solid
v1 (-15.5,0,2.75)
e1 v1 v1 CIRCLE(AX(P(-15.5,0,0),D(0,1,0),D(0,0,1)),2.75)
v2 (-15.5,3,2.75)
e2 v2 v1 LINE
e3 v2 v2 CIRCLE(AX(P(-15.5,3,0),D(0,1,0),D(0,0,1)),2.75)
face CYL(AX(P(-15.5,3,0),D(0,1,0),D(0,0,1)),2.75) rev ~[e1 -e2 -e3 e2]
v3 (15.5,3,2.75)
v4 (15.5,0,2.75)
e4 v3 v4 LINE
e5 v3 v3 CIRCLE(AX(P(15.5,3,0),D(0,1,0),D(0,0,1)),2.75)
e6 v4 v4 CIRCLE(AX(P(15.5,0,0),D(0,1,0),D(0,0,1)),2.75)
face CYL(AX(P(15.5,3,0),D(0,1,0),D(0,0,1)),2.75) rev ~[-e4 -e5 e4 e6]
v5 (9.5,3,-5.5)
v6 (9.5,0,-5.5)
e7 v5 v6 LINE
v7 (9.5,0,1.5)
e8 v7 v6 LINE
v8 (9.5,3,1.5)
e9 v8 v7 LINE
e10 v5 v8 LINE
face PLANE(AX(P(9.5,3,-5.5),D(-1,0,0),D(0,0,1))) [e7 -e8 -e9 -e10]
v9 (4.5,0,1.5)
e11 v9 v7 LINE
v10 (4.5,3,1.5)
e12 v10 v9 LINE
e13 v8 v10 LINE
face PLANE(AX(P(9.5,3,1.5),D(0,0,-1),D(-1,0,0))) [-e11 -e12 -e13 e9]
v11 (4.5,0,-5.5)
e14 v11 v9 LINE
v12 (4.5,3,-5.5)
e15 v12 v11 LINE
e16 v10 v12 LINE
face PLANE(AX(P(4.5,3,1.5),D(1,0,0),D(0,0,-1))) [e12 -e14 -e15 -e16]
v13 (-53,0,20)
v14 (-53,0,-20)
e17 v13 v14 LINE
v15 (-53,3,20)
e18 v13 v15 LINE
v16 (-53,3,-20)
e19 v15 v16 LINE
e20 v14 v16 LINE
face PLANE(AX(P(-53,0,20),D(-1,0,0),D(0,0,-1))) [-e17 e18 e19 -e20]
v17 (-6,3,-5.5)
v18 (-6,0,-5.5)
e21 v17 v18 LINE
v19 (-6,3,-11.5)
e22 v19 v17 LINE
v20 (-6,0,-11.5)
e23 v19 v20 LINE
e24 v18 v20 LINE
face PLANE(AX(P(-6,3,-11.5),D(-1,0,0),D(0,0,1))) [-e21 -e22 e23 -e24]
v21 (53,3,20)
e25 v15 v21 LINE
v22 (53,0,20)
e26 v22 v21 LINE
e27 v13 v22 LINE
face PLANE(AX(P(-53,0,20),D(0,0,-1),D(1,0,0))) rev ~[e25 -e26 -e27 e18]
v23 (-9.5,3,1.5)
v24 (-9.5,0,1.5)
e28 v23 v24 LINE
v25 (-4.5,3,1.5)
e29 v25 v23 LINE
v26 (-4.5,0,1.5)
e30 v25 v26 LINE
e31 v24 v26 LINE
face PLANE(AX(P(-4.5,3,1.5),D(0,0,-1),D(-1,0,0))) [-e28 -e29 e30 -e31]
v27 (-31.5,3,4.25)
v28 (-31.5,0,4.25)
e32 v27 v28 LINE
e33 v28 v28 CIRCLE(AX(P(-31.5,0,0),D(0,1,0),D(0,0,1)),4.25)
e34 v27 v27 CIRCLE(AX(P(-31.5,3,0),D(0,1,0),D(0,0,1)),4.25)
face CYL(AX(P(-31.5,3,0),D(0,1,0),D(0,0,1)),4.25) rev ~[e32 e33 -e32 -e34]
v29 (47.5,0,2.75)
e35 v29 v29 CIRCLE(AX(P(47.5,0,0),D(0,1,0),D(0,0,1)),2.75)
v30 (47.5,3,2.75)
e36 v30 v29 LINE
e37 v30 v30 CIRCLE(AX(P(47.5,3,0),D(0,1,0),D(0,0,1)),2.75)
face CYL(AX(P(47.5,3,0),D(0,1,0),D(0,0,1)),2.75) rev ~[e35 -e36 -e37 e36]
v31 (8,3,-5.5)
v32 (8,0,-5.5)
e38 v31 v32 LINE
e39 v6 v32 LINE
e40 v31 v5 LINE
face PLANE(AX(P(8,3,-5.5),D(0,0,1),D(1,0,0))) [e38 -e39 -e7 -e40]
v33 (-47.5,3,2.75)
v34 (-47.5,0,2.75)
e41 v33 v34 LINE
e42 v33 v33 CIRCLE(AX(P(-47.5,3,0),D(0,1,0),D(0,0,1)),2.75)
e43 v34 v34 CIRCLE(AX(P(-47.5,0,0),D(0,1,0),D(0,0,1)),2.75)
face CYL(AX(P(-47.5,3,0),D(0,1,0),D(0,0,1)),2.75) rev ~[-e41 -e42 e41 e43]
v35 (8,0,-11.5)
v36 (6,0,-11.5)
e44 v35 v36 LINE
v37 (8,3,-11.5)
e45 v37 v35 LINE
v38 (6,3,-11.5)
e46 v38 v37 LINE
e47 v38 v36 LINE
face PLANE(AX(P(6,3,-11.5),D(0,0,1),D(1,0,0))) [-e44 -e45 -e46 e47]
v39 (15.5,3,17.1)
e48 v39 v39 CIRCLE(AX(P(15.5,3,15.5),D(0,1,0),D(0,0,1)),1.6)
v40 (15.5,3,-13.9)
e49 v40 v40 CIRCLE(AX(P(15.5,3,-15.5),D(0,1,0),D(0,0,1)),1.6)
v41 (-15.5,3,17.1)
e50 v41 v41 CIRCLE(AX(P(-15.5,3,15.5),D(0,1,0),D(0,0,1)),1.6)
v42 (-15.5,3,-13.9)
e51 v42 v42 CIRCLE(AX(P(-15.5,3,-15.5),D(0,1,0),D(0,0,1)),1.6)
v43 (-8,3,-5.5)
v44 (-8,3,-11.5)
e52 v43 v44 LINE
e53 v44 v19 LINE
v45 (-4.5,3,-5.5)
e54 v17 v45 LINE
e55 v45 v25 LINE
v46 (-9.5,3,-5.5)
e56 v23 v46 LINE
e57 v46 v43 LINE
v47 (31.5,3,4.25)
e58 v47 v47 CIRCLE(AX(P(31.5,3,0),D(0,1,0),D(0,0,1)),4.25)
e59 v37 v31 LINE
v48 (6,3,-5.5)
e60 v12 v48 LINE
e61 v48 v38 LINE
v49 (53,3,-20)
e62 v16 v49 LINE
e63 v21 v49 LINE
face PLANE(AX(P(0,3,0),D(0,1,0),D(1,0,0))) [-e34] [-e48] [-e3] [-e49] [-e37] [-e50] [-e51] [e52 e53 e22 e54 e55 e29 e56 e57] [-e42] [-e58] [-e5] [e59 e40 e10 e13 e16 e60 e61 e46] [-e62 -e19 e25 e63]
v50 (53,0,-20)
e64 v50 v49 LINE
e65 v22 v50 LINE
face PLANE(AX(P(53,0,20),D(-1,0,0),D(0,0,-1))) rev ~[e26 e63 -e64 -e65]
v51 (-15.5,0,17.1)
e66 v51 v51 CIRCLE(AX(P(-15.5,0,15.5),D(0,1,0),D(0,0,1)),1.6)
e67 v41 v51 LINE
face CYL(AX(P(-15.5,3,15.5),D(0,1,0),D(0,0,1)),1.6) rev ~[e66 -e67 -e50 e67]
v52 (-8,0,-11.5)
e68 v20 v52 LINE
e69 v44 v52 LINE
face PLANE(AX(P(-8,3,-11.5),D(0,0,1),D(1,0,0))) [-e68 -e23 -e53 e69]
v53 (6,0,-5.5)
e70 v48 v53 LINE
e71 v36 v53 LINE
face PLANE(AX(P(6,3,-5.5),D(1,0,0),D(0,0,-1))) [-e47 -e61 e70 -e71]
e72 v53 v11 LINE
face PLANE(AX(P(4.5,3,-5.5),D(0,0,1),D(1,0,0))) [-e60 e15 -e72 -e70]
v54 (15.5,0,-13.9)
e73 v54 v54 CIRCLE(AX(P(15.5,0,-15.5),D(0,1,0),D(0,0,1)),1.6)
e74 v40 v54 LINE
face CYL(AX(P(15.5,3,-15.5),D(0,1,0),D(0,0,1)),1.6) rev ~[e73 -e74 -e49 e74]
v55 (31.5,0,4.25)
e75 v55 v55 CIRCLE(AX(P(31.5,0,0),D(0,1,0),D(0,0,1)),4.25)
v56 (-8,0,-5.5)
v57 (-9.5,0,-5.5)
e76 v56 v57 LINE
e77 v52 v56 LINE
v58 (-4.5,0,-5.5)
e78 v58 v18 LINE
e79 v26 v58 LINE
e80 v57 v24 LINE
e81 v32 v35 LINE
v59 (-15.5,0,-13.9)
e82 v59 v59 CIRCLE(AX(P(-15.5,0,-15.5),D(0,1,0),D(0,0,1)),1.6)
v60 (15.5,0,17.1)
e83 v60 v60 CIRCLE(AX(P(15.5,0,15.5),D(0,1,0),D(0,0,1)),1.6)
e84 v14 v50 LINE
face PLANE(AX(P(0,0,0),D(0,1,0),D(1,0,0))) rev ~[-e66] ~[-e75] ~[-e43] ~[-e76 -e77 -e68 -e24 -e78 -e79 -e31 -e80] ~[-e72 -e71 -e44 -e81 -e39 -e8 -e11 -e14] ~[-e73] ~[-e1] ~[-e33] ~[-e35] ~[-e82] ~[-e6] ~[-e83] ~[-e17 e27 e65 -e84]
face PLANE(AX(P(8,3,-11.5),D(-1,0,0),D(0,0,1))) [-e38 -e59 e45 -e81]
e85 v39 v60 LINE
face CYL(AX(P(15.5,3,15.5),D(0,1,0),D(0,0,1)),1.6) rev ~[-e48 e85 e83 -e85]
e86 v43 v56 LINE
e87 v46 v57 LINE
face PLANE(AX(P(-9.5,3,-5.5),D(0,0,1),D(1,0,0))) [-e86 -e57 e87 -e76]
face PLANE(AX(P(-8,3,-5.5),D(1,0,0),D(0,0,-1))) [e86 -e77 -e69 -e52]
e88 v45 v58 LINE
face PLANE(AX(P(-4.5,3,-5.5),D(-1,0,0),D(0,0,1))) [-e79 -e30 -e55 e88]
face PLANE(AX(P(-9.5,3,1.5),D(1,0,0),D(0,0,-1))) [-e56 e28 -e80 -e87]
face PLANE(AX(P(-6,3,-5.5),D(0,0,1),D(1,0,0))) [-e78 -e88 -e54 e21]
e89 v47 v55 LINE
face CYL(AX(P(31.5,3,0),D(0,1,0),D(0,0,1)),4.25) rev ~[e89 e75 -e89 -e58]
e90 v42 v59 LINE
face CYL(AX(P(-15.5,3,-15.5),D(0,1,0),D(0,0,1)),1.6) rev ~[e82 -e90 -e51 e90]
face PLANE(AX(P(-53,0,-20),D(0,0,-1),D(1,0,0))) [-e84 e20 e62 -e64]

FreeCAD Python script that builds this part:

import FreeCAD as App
import Part
import Sketcher

V = App.Vector


def add_polygon(sketch, points):
    """Adds a closed chain of lines whose ends are joined by coincident constraints."""
    first, n = sketch.GeometryCount, len(points)
    for a, b in zip(points, points[1:] + points[:1]):
        sketch.addGeometry(Part.LineSegment(App.Vector(*a, 0), App.Vector(*b, 0)), False)
    for i in range(n):
        sketch.addConstraint(Sketcher.Constraint("Coincident", first + i, 2, first + (i + 1) % n, 1))

doc = App.newDocument("Part")
params = doc.addObject("Spreadsheet::Sheet", "Params")
for row, (alias, value) in enumerate([
    ("sketch1_width", "106 mm"),
    ("sketch1_height", "40 mm"),
    ("pad1_length", "3 mm"),
    ("sketch2_diameter", "8.5 mm"),
    ("sketch3_diameter", "8.5 mm"),
    ("sketch4_diameter", "5.5 mm"),
    ("sketch5_diameter", "5.5 mm"),
    ("sketch6_diameter", "5.5 mm"),
    ("sketch7_diameter", "5.5 mm"),
    ("sketch8_diameter", "3.2 mm"),
    ("sketch9_diameter", "3.2 mm"),
    ("sketch10_diameter", "3.2 mm"),
    ("sketch11_diameter", "3.2 mm"),
    ("sketch12_width", "2 mm"),
    ("sketch12_width2", "5 mm"),
    ("sketch12_height", "6 mm"),
    ("sketch12_height2", "7 mm"),
    ("sketch13_width", "2 mm"),
    ("sketch13_width2", "5 mm"),
    ("sketch13_height", "6 mm"),
    ("sketch13_height2", "7 mm"),
], start=1):
    params.set(f"A{row}", alias)
    params.set(f"B{row}", "=" + value)
    params.setAlias(f"B{row}", alias)

body = doc.addObject("PartDesign::Body", "Body")

# Sketch on XZ plane
sketch1 = body.newObject("Sketcher::SketchObject", "Sketch")
sketch1.AttachmentSupport = (doc.getObject("XZ_Plane"), [""])
sketch1.MapMode = "FlatFace"
add_polygon(sketch1, [(-53, -20), (-53, 20), (53, 20), (53, -20)])  # lines 0-3
sketch1.addConstraint([
    Sketcher.Constraint("Vertical", 0),
    Sketcher.Constraint("Horizontal", 1),
    Sketcher.Constraint("Vertical", 2),
    Sketcher.Constraint("Horizontal", 3),
    Sketcher.Constraint("Symmetric", 0, 2, 2, 2, -1, 1),
    Sketcher.Constraint("DistanceX", 1, 1, 1, 2, 106.0),
    Sketcher.Constraint("DistanceY", 0, 1, 0, 2, 40.0),
])
sketch1.setExpression("Constraints[9]", "Params.sketch1_width")
sketch1.setExpression("Constraints[10]", "Params.sketch1_height")
pad1 = body.newObject("PartDesign::Pad", "Pad")
pad1.Profile = sketch1
pad1.setExpression("Length", "Params.pad1_length")
pad1.Reversed = True

# Sketch on XZ plane
sketch2 = body.newObject("Sketcher::SketchObject", "Sketch001")
sketch2.AttachmentSupport = (doc.getObject("XZ_Plane"), [""])
sketch2.MapMode = "FlatFace"
sketch2.AttachmentOffset = App.Placement(V(0, 0, -3), App.Rotation())
sketch2.addGeometry(Part.Circle(V(-31.5, 0, 0), V(0, 0, 1), 4.2), False)
sketch2.addConstraint([
    Sketcher.Constraint("PointOnObject", 0, 3, -1),
    Sketcher.Constraint("Diameter", 0, 8.5),
    Sketcher.Constraint("DistanceX", 0, 3, -1, 1, 31.5),
])
sketch2.setExpression("Constraints[1]", "Params.sketch2_diameter")
pocket1 = body.newObject("PartDesign::Pocket", "Pocket")
pocket1.Profile = sketch2
pocket1.Type = "UpToFirst"
pocket1.Reversed = True

# Sketch on XZ plane
sketch3 = body.newObject("Sketcher::SketchObject", "Sketch002")
sketch3.AttachmentSupport = (doc.getObject("XZ_Plane"), [""])
sketch3.MapMode = "FlatFace"
sketch3.AttachmentOffset = App.Placement(V(0, 0, -3), App.Rotation())
sketch3.addGeometry(Part.Circle(V(31.5, 0, 0), V(0, 0, 1), 4.2), False)
sketch3.addConstraint([
    Sketcher.Constraint("PointOnObject", 0, 3, -1),
    Sketcher.Constraint("Diameter", 0, 8.5),
    Sketcher.Constraint("DistanceX", -1, 1, 0, 3, 31.5),
])
sketch3.setExpression("Constraints[1]", "Params.sketch3_diameter")
pocket2 = body.newObject("PartDesign::Pocket", "Pocket001")
pocket2.Profile = sketch3
pocket2.Type = "UpToFirst"
pocket2.Reversed = True

# Sketch on XZ plane
sketch4 = body.newObject("Sketcher::SketchObject", "Sketch003")
sketch4.AttachmentSupport = (doc.getObject("XZ_Plane"), [""])
sketch4.MapMode = "FlatFace"
sketch4.AttachmentOffset = App.Placement(V(0, 0, -3), App.Rotation())
sketch4.addGeometry(Part.Circle(V(-47.5, 0, 0), V(0, 0, 1), 2.8), False)
sketch4.addConstraint([
    Sketcher.Constraint("PointOnObject", 0, 3, -1),
    Sketcher.Constraint("Diameter", 0, 5.5),
    Sketcher.Constraint("DistanceX", 0, 3, -1, 1, 47.5),
])
sketch4.setExpression("Constraints[1]", "Params.sketch4_diameter")
pocket3 = body.newObject("PartDesign::Pocket", "Pocket002")
pocket3.Profile = sketch4
pocket3.Type = "UpToFirst"
pocket3.Reversed = True

# Sketch on XZ plane
sketch5 = body.newObject("Sketcher::SketchObject", "Sketch004")
sketch5.AttachmentSupport = (doc.getObject("XZ_Plane"), [""])
sketch5.MapMode = "FlatFace"
sketch5.AttachmentOffset = App.Placement(V(0, 0, -3), App.Rotation())
sketch5.addGeometry(Part.Circle(V(-15.5, 0, 0), V(0, 0, 1), 2.8), False)
sketch5.addConstraint([
    Sketcher.Constraint("PointOnObject", 0, 3, -1),
    Sketcher.Constraint("Diameter", 0, 5.5),
    Sketcher.Constraint("DistanceX", 0, 3, -1, 1, 15.5),
])
sketch5.setExpression("Constraints[1]", "Params.sketch5_diameter")
pocket4 = body.newObject("PartDesign::Pocket", "Pocket003")
pocket4.Profile = sketch5
pocket4.Type = "UpToFirst"
pocket4.Reversed = True

# Sketch on XZ plane
sketch6 = body.newObject("Sketcher::SketchObject", "Sketch005")
sketch6.AttachmentSupport = (doc.getObject("XZ_Plane"), [""])
sketch6.MapMode = "FlatFace"
sketch6.AttachmentOffset = App.Placement(V(0, 0, -3), App.Rotation())
sketch6.addGeometry(Part.Circle(V(15.5, 0, 0), V(0, 0, 1), 2.8), False)
sketch6.addConstraint([
    Sketcher.Constraint("PointOnObject", 0, 3, -1),
    Sketcher.Constraint("Diameter", 0, 5.5),
    Sketcher.Constraint("DistanceX", -1, 1, 0, 3, 15.5),
])
sketch6.setExpression("Constraints[1]", "Params.sketch6_diameter")
pocket5 = body.newObject("PartDesign::Pocket", "Pocket004")
pocket5.Profile = sketch6
pocket5.Type = "UpToFirst"
pocket5.Reversed = True

# Sketch on XZ plane
sketch7 = body.newObject("Sketcher::SketchObject", "Sketch006")
sketch7.AttachmentSupport = (doc.getObject("XZ_Plane"), [""])
sketch7.MapMode = "FlatFace"
sketch7.AttachmentOffset = App.Placement(V(0, 0, -3), App.Rotation())
sketch7.addGeometry(Part.Circle(V(47.5, 0, 0), V(0, 0, 1), 2.8), False)
sketch7.addConstraint([
    Sketcher.Constraint("PointOnObject", 0, 3, -1),
    Sketcher.Constraint("Diameter", 0, 5.5),
    Sketcher.Constraint("DistanceX", -1, 1, 0, 3, 47.5),
])
sketch7.setExpression("Constraints[1]", "Params.sketch7_diameter")
pocket6 = body.newObject("PartDesign::Pocket", "Pocket005")
pocket6.Profile = sketch7
pocket6.Type = "UpToFirst"
pocket6.Reversed = True

# Sketch on XZ plane
sketch8 = body.newObject("Sketcher::SketchObject", "Sketch007")
sketch8.AttachmentSupport = (doc.getObject("XZ_Plane"), [""])
sketch8.MapMode = "FlatFace"
sketch8.AttachmentOffset = App.Placement(V(0, 0, -3), App.Rotation())
sketch8.addGeometry(Part.Circle(V(-15.5, 15.5, 0), V(0, 0, 1), 1.6), False)
sketch8.addConstraint([
    Sketcher.Constraint("Diameter", 0, 3.2),
    Sketcher.Constraint("DistanceX", 0, 3, -1, 1, 15.5),
    Sketcher.Constraint("DistanceY", -1, 1, 0, 3, 15.5),
])
sketch8.setExpression("Constraints[0]", "Params.sketch8_diameter")
pocket7 = body.newObject("PartDesign::Pocket", "Pocket006")
pocket7.Profile = sketch8
pocket7.Type = "UpToFirst"
pocket7.Reversed = True

# Sketch on XZ plane
sketch9 = body.newObject("Sketcher::SketchObject", "Sketch008")
sketch9.AttachmentSupport = (doc.getObject("XZ_Plane"), [""])
sketch9.MapMode = "FlatFace"
sketch9.AttachmentOffset = App.Placement(V(0, 0, -3), App.Rotation())
sketch9.addGeometry(Part.Circle(V(-15.5, -15.5, 0), V(0, 0, 1), 1.6), False)
sketch9.addConstraint([
    Sketcher.Constraint("Diameter", 0, 3.2),
    Sketcher.Constraint("DistanceX", 0, 3, -1, 1, 15.5),
    Sketcher.Constraint("DistanceY", 0, 3, -1, 1, 15.5),
])
sketch9.setExpression("Constraints[0]", "Params.sketch9_diameter")
pocket8 = body.newObject("PartDesign::Pocket", "Pocket007")
pocket8.Profile = sketch9
pocket8.Type = "UpToFirst"
pocket8.Reversed = True

# Sketch on XZ plane
sketch10 = body.newObject("Sketcher::SketchObject", "Sketch009")
sketch10.AttachmentSupport = (doc.getObject("XZ_Plane"), [""])
sketch10.MapMode = "FlatFace"
sketch10.AttachmentOffset = App.Placement(V(0, 0, -3), App.Rotation())
sketch10.addGeometry(Part.Circle(V(15.5, -15.5, 0), V(0, 0, 1), 1.6), False)
sketch10.addConstraint([
    Sketcher.Constraint("Diameter", 0, 3.2),
    Sketcher.Constraint("DistanceX", -1, 1, 0, 3, 15.5),
    Sketcher.Constraint("DistanceY", 0, 3, -1, 1, 15.5),
])
sketch10.setExpression("Constraints[0]", "Params.sketch10_diameter")
pocket9 = body.newObject("PartDesign::Pocket", "Pocket008")
pocket9.Profile = sketch10
pocket9.Type = "UpToFirst"
pocket9.Reversed = True

# Sketch on XZ plane
sketch11 = body.newObject("Sketcher::SketchObject", "Sketch010")
sketch11.AttachmentSupport = (doc.getObject("XZ_Plane"), [""])
sketch11.MapMode = "FlatFace"
sketch11.AttachmentOffset = App.Placement(V(0, 0, -3), App.Rotation())
sketch11.addGeometry(Part.Circle(V(15.5, 15.5, 0), V(0, 0, 1), 1.6), False)
sketch11.addConstraint([
    Sketcher.Constraint("Diameter", 0, 3.2),
    Sketcher.Constraint("DistanceX", -1, 1, 0, 3, 15.5),
    Sketcher.Constraint("DistanceY", -1, 1, 0, 3, 15.5),
])
sketch11.setExpression("Constraints[0]", "Params.sketch11_diameter")
pocket10 = body.newObject("PartDesign::Pocket", "Pocket009")
pocket10.Profile = sketch11
pocket10.Type = "UpToFirst"
pocket10.Reversed = True

# Sketch on XZ plane
sketch12 = body.newObject("Sketcher::SketchObject", "Sketch011")
sketch12.AttachmentSupport = (doc.getObject("XZ_Plane"), [""])
sketch12.MapMode = "FlatFace"
sketch12.AttachmentOffset = App.Placement(V(0, 0, -3), App.Rotation())
add_polygon(sketch12, [(-4.5, -5.5), (-6, -5.5), (-6, -11.5), (-8, -11.5), (-8, -5.5), (-9.5, -5.5), (-9.5, 1.5), (-4.5, 1.5)])  # lines 0-7
sketch12.addConstraint([
    Sketcher.Constraint("Horizontal", 0),
    Sketcher.Constraint("Vertical", 1),
    Sketcher.Constraint("Horizontal", 2),
    Sketcher.Constraint("Vertical", 3),
    Sketcher.Constraint("Horizontal", 4),
    Sketcher.Constraint("Vertical", 5),
    Sketcher.Constraint("Horizontal", 6),
    Sketcher.Constraint("Vertical", 7),
    Sketcher.Constraint("Horizontal", 0, 2, 3, 2),
    Sketcher.Constraint("Equal", 0, 4),
    Sketcher.Constraint("DistanceX", 2, 2, 2, 1, 2.0),
    Sketcher.Constraint("DistanceX", 6, 1, 6, 2, 5.0),
    Sketcher.Constraint("DistanceY", 1, 2, 1, 1, 6.0),
    Sketcher.Constraint("DistanceY", 5, 1, 5, 2, 7.0),
    Sketcher.Constraint("DistanceX", 0, 2, -1, 1, 6.0),
    Sketcher.Constraint("DistanceY", 0, 2, -1, 1, 5.5),
])
sketch12.setExpression("Constraints[18]", "Params.sketch12_width")
sketch12.setExpression("Constraints[19]", "Params.sketch12_width2")
sketch12.setExpression("Constraints[20]", "Params.sketch12_height")
sketch12.setExpression("Constraints[21]", "Params.sketch12_height2")
pocket11 = body.newObject("PartDesign::Pocket", "Pocket010")
pocket11.Profile = sketch12
pocket11.Type = "UpToFirst"
pocket11.Reversed = True

# Sketch on XZ plane
sketch13 = body.newObject("Sketcher::SketchObject", "Sketch012")
sketch13.AttachmentSupport = (doc.getObject("XZ_Plane"), [""])
sketch13.MapMode = "FlatFace"
sketch13.AttachmentOffset = App.Placement(V(0, 0, -3), App.Rotation())
add_polygon(sketch13, [(8, -5.5), (8, -11.5), (6, -11.5), (6, -5.5), (4.5, -5.5), (4.5, 1.5), (9.5, 1.5), (9.5, -5.5)])  # lines 0-7
sketch13.addConstraint([
    Sketcher.Constraint("Vertical", 0),
    Sketcher.Constraint("Horizontal", 1),
    Sketcher.Constraint("Vertical", 2),
    Sketcher.Constraint("Horizontal", 3),
    Sketcher.Constraint("Vertical", 4),
    Sketcher.Constraint("Horizontal", 5),
    Sketcher.Constraint("Vertical", 6),
    Sketcher.Constraint("Horizontal", 7),
    Sketcher.Constraint("Horizontal", 3, 2, 6, 2),
    Sketcher.Constraint("Equal", 3, 7),
    Sketcher.Constraint("DistanceX", 1, 2, 1, 1, 2.0),
    Sketcher.Constraint("DistanceX", 5, 1, 5, 2, 5.0),
    Sketcher.Constraint("DistanceY", 0, 2, 0, 1, 6.0),
    Sketcher.Constraint("DistanceY", 4, 1, 4, 2, 7.0),
    Sketcher.Constraint("DistanceX", -1, 1, 0, 2, 8.0),
    Sketcher.Constraint("DistanceY", 0, 2, -1, 1, 11.5),
])
sketch13.setExpression("Constraints[18]", "Params.sketch13_width")
sketch13.setExpression("Constraints[19]", "Params.sketch13_width2")
sketch13.setExpression("Constraints[20]", "Params.sketch13_height")
sketch13.setExpression("Constraints[21]", "Params.sketch13_height2")
pocket12 = body.newObject("PartDesign::Pocket", "Pocket011")
pocket12.Profile = sketch13
pocket12.Type = "UpToFirst"
pocket12.Reversed = True

doc.recompute()
